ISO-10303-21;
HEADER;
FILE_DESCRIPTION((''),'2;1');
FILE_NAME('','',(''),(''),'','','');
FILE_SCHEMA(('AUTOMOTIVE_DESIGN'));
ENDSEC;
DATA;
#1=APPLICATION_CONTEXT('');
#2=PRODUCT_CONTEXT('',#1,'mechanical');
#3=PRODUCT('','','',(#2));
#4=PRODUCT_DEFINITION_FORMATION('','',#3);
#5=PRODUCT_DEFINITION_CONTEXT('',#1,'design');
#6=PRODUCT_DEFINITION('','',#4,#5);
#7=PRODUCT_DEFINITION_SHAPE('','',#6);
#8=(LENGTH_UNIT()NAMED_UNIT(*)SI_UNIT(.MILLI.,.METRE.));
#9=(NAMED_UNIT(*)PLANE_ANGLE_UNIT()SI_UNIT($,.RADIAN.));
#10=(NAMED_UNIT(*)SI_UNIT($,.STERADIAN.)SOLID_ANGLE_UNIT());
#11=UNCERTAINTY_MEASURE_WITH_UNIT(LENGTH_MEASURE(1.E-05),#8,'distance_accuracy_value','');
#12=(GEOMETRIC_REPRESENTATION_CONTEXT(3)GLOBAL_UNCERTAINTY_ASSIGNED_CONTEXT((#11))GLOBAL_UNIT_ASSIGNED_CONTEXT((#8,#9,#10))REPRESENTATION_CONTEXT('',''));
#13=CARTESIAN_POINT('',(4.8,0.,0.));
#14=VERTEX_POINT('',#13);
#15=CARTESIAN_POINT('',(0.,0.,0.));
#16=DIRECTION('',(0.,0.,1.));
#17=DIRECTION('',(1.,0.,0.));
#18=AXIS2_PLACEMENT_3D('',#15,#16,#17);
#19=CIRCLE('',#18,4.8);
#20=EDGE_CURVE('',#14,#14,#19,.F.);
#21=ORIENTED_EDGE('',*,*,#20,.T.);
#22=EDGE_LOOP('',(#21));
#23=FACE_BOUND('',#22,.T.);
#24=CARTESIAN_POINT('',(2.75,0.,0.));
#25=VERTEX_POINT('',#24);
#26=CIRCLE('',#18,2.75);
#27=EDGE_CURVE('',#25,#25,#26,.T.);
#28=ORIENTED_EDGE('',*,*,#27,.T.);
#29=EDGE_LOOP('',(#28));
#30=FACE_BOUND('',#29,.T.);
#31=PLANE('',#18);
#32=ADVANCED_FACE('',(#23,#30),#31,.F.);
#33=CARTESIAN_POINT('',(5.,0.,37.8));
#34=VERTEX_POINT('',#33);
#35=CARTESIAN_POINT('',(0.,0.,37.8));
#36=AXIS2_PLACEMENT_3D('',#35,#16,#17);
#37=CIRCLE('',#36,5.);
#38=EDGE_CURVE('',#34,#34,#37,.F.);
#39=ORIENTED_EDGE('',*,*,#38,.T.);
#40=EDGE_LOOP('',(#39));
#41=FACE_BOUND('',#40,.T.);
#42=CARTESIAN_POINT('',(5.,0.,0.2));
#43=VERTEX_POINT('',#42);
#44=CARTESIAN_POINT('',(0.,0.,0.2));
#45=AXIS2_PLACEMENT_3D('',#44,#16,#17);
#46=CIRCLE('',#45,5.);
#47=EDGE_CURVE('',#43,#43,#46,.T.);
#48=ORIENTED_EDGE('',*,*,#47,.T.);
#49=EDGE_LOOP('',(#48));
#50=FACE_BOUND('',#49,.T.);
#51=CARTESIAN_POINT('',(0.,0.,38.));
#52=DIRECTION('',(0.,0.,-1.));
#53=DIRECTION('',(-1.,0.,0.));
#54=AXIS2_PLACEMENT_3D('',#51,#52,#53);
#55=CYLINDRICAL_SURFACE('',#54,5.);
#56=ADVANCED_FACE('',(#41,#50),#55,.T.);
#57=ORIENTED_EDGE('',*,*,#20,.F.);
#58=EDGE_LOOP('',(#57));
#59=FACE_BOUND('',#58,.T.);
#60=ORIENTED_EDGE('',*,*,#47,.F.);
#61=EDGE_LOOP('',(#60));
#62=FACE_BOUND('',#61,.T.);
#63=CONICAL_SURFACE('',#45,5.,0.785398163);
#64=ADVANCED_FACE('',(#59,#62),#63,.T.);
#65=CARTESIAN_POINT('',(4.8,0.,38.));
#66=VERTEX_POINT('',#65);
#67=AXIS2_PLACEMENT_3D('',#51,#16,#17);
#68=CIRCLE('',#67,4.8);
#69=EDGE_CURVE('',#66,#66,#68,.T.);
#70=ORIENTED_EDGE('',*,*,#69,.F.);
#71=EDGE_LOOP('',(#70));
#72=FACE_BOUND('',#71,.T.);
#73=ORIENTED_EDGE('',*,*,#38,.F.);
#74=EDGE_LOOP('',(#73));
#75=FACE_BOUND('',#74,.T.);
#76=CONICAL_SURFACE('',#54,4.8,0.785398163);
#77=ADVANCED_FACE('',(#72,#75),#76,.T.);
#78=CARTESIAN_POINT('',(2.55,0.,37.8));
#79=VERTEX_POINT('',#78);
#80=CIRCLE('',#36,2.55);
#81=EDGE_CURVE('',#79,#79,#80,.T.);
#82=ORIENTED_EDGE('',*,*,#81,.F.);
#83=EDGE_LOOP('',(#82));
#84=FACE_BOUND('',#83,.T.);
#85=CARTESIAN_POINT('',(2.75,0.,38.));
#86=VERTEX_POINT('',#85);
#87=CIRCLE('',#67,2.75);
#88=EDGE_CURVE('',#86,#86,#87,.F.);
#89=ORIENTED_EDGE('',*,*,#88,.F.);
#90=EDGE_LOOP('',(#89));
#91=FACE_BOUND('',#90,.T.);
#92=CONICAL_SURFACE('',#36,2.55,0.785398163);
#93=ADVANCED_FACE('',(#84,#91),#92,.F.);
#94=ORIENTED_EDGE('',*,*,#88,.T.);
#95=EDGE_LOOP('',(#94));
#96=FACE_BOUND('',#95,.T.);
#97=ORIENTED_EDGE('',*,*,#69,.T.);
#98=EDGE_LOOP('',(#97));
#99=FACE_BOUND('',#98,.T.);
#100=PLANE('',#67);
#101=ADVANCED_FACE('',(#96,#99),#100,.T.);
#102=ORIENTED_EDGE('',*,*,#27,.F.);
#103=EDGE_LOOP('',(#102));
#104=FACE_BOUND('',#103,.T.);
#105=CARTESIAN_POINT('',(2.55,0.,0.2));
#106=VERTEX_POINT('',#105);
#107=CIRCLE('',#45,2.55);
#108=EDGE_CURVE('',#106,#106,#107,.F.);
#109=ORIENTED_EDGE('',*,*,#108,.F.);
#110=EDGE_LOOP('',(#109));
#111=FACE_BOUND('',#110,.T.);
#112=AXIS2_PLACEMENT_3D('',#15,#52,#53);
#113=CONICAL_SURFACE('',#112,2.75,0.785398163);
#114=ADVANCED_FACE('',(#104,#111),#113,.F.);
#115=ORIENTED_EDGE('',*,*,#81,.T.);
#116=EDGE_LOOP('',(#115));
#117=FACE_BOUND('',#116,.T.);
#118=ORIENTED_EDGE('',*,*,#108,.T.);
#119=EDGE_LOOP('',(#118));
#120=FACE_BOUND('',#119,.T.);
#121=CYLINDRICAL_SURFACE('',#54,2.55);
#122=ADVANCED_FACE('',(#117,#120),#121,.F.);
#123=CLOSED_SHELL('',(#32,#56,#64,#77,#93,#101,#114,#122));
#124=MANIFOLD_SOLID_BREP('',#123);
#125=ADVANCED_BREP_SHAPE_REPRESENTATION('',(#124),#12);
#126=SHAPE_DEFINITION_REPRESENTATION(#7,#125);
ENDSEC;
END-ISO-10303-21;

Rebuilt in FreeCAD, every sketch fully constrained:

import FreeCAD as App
import Part
import Sketcher
from FreeCAD import Vector
Q = App.Units.Quantity


def edges_at(feature, points):
    """Names of the edges that pass closest to the given points."""
    edges = feature.Shape.Edges
    near = lambda p: min(range(len(edges)), key=lambda i: edges[i].distToShape(Part.Vertex(*p))[0])
    return sorted({f"Edge{near(p) + 1}" for p in points})

doc = App.newDocument("Part")
body = doc.addObject("PartDesign::Body", "Body")

sketch1 = body.newObject("Sketcher::SketchObject", "Sketch")
sketch1.AttachmentSupport = (doc.getObject("XY_Plane"), [""])
sketch1.MapMode = "FlatFace"
sketch1.addGeometry([
    Part.Circle(Vector(0, 0, 0), Vector(0, 0, 1), 5),
    Part.Circle(Vector(0, 0, 0), Vector(0, 0, 1), 2.5),
], False)
sketch1.addConstraint([
    Sketcher.Constraint("Coincident", 0, 3, -1, 1),
    Sketcher.Constraint("Coincident", 1, 3, -1, 1),
    Sketcher.Constraint("Diameter", 0, Q("10 mm")),
    Sketcher.Constraint("Diameter", 1, Q("5.1 mm")),
])
pad1 = body.newObject("PartDesign::Pad", "Pad")
pad1.Profile = sketch1
pad1.Length = 38
doc.recompute()

chamfer = body.newObject("PartDesign::Chamfer", "Chamfer")
chamfer.Base = (pad1, edges_at(pad1, [
    (-5, 0, 0),
    (-5, 0, 38),
    (-2.55, 0, 0),
    (-2.55, 0, 38),
]))
chamfer.Size = 0.2

doc.recompute()
